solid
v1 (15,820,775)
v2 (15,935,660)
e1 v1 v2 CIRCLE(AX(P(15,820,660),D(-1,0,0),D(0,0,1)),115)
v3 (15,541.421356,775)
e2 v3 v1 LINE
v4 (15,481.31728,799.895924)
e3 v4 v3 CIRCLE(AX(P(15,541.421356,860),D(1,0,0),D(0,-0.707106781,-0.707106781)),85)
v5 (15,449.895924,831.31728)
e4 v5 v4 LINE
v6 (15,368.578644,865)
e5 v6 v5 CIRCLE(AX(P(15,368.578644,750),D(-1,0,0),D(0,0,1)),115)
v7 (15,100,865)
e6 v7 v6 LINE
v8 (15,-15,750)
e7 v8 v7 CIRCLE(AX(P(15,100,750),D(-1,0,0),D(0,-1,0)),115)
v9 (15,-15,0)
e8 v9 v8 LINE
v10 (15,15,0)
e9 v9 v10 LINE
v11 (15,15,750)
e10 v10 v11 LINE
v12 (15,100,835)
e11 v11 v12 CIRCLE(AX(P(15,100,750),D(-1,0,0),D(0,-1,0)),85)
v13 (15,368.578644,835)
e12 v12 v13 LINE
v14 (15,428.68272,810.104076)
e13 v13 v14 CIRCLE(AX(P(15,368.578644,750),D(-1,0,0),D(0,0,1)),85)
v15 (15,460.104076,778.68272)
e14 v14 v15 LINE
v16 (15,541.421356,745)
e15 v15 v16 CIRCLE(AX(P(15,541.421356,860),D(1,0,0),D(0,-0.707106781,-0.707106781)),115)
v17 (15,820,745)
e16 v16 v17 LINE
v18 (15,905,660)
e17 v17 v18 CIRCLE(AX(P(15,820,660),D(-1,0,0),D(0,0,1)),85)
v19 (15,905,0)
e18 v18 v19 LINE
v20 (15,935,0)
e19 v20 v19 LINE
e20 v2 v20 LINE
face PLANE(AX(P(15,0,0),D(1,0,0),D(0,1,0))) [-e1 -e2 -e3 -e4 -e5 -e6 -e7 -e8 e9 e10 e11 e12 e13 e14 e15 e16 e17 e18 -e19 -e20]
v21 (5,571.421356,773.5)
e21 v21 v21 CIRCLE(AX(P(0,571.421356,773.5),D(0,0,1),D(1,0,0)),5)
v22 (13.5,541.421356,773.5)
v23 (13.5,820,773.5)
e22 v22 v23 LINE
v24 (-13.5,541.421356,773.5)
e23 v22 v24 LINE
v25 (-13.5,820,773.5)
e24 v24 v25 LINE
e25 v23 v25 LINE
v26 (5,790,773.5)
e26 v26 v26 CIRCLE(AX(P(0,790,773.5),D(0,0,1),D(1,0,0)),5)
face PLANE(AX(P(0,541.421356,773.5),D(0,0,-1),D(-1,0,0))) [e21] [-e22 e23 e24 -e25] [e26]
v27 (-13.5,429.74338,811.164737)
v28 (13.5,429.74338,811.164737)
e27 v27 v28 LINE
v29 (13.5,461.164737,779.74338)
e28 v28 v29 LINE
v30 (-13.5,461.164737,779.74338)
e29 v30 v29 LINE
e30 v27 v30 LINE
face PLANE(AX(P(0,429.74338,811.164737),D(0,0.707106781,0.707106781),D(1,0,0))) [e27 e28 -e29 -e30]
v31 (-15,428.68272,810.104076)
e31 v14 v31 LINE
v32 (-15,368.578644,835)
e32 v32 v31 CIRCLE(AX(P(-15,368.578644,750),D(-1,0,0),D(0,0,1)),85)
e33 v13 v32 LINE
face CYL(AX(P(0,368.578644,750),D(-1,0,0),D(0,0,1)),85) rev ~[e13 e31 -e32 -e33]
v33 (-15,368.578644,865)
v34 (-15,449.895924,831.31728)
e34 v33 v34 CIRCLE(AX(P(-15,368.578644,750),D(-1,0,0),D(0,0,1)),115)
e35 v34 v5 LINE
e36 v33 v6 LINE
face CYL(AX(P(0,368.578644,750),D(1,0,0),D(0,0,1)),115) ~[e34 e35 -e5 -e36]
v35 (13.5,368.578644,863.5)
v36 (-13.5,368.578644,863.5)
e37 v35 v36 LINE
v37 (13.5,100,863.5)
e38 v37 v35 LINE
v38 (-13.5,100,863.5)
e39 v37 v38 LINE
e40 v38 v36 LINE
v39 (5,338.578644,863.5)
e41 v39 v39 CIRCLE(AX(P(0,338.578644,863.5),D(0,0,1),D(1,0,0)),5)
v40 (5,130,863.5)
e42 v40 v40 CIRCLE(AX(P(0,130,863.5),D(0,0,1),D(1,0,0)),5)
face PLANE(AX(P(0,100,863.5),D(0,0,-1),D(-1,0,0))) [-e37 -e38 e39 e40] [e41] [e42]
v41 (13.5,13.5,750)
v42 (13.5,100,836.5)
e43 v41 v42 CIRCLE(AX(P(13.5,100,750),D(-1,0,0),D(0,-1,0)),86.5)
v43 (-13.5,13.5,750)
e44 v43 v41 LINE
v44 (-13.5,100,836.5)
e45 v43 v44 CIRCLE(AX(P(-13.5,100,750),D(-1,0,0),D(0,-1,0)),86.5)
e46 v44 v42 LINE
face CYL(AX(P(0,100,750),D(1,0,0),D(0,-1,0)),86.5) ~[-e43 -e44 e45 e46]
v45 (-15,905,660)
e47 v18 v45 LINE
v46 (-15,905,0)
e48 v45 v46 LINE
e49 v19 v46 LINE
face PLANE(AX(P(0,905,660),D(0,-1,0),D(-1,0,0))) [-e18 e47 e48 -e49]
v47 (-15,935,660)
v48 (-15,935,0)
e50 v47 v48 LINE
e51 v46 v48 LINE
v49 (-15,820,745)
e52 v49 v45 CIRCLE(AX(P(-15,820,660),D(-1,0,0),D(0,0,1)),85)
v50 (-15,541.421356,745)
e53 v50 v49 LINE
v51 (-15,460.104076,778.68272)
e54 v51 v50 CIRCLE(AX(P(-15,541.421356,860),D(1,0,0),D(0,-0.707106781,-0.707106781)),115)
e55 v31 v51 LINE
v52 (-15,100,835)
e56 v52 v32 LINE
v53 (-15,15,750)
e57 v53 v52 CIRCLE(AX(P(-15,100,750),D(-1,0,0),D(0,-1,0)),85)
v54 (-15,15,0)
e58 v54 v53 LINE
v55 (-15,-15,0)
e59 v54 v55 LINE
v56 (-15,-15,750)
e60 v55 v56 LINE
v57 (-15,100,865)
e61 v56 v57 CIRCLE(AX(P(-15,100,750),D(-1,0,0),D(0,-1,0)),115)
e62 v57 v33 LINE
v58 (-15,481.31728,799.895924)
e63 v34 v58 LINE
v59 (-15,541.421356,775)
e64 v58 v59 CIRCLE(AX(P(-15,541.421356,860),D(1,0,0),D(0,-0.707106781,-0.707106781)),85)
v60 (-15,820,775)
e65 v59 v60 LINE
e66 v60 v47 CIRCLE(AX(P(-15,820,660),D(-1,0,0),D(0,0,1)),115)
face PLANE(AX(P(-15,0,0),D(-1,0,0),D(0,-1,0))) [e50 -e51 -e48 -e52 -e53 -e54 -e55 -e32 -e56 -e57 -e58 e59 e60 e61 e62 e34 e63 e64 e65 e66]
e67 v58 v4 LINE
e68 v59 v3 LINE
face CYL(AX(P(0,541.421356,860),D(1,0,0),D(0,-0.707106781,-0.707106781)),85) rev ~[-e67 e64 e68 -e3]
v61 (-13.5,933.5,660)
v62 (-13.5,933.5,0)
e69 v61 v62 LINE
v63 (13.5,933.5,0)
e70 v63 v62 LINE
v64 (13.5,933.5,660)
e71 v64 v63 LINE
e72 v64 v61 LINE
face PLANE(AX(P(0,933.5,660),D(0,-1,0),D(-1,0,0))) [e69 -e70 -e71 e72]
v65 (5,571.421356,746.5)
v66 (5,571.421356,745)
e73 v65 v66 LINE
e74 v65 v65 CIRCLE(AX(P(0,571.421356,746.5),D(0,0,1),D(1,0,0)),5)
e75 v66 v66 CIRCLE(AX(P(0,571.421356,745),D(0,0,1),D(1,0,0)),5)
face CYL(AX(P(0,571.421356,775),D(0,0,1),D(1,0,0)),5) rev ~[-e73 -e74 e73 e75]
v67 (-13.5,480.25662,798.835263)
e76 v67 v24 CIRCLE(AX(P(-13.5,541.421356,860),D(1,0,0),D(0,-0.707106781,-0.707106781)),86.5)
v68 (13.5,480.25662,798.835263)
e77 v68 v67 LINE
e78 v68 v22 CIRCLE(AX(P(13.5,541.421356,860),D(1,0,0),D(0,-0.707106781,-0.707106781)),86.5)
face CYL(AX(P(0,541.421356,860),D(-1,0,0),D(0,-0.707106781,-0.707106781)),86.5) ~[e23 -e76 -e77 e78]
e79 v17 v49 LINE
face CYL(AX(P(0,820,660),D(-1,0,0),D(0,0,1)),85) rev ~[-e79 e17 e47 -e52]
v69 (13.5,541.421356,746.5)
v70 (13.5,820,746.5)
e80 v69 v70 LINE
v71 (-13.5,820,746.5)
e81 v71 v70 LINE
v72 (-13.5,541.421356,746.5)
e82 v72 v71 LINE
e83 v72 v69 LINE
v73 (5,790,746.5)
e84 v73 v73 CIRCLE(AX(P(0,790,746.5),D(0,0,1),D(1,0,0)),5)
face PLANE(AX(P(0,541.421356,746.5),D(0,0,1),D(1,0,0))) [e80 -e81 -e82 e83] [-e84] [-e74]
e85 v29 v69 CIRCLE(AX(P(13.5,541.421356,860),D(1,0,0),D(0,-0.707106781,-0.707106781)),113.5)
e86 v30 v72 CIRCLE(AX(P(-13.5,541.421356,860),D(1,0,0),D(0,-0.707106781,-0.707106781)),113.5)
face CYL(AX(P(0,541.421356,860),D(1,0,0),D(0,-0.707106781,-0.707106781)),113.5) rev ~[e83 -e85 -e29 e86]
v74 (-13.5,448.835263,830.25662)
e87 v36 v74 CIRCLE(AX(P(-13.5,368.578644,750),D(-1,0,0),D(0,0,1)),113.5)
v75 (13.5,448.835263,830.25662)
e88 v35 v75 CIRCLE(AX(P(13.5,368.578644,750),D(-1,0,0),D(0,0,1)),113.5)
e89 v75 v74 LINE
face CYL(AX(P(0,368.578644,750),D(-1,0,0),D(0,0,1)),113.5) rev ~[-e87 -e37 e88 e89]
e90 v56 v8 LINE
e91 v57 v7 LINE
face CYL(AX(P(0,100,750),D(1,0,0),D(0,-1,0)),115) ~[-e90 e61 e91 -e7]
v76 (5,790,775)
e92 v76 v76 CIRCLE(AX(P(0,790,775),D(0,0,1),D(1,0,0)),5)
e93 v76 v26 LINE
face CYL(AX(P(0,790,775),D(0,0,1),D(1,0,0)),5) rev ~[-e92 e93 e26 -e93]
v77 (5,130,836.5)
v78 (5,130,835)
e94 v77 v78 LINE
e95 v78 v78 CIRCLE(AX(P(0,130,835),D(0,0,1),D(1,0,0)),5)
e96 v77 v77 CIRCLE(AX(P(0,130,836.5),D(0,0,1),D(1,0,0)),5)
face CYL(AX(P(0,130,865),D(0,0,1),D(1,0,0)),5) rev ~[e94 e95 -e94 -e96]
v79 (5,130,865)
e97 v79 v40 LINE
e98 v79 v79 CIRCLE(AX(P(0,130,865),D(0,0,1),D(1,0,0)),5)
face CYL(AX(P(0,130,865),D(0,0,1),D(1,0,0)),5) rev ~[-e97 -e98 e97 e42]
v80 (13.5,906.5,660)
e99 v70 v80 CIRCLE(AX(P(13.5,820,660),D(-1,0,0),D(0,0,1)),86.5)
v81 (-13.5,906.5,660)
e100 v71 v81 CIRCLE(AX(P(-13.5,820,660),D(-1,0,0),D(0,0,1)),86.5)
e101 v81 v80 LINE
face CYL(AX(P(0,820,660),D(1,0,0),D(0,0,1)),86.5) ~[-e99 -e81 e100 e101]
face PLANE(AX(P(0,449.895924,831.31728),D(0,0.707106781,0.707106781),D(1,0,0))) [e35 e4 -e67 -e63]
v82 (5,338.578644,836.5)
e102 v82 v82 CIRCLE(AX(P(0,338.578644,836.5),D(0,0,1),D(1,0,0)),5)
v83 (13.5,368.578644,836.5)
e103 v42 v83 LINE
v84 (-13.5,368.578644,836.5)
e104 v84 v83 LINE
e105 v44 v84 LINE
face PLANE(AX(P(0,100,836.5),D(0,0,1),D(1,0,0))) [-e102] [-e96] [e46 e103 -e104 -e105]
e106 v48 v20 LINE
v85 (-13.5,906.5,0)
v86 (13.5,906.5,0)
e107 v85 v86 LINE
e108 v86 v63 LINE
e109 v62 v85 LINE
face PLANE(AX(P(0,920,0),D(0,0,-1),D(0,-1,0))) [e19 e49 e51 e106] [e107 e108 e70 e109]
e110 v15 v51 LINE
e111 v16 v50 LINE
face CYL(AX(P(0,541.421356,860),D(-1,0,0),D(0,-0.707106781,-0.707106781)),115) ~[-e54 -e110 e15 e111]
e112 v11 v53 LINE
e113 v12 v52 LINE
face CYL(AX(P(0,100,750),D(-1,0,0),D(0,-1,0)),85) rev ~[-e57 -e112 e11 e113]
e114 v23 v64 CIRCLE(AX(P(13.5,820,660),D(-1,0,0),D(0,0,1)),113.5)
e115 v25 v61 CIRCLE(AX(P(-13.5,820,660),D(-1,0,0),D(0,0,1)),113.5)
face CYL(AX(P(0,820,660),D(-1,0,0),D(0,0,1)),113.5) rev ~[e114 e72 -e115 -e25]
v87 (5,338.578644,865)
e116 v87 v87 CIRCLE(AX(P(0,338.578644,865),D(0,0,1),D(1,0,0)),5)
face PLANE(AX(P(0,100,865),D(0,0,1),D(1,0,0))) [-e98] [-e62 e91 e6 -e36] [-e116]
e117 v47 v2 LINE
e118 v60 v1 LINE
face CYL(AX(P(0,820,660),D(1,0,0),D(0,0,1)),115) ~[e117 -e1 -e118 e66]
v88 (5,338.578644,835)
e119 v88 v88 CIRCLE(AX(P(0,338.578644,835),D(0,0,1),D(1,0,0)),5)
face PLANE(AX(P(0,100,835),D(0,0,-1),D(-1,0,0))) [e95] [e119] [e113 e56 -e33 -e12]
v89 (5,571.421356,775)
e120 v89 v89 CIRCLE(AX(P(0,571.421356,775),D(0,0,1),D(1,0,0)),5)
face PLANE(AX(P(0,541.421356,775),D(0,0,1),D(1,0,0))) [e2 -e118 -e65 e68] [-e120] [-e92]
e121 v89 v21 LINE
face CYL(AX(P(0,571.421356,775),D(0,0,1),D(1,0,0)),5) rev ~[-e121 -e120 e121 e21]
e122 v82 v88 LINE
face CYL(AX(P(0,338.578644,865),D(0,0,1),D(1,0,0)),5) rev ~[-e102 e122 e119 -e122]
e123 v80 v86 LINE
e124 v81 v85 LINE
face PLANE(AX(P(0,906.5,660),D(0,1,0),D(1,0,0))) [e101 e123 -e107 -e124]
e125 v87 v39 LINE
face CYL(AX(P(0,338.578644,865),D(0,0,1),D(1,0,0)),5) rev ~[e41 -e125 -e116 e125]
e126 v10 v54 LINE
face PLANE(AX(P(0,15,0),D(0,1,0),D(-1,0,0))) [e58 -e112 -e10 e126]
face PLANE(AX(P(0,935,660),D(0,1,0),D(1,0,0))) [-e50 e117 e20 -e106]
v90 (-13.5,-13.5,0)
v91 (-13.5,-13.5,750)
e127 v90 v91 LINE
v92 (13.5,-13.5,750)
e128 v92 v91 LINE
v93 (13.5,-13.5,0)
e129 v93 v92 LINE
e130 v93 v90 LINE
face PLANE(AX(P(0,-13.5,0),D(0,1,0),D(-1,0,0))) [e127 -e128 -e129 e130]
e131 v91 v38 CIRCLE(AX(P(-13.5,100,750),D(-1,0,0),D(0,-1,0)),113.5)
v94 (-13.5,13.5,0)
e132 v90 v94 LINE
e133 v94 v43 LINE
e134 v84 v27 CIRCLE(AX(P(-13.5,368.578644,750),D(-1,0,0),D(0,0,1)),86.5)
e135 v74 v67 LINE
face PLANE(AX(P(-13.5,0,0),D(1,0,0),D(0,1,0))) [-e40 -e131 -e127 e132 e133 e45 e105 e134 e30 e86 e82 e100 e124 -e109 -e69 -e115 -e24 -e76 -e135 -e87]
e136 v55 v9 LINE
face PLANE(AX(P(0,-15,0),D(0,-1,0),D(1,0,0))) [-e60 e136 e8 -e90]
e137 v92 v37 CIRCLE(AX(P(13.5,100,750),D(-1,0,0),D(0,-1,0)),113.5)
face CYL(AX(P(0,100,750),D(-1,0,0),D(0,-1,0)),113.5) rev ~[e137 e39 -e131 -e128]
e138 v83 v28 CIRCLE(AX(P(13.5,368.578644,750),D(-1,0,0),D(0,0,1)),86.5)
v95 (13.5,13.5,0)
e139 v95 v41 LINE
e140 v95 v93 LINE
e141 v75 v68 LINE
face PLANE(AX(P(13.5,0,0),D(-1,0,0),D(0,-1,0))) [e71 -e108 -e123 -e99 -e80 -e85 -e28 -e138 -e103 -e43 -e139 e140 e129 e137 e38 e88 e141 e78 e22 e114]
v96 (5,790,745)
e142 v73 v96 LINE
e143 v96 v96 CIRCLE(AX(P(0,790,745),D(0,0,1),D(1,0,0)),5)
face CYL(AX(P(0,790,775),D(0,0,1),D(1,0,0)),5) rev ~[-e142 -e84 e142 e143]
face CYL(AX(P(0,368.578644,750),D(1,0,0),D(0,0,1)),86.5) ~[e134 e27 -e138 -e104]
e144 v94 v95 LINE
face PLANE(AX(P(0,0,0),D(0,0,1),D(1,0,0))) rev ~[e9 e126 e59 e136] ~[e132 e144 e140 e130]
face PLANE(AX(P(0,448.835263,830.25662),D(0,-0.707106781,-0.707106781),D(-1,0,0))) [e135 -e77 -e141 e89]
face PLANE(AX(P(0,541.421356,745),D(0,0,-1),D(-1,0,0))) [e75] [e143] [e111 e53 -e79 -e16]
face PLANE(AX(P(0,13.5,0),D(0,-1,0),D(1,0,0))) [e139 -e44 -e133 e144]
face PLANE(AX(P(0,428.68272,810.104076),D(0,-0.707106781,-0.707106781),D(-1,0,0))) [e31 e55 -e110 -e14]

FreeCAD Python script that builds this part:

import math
import FreeCAD as App
import Part
import Sketcher

V = App.Vector
Q = App.Units.Quantity

doc = App.newDocument("Part")
body = doc.addObject("PartDesign::Body", "Body")

# Sketch on XY plane
sketch1 = body.newObject("Sketcher::SketchObject", "Sketch")
sketch1.AttachmentSupport = (doc.getObject("XY_Plane"), [""])
sketch1.MapMode = "FlatFace"
sketch1.addGeometry([
    Part.LineSegment(V(-15, 15, 0), V(-15, -15, 0)),  # 0
    Part.LineSegment(V(-15, -15, 0), V(15, -15, 0)),  # 1
    Part.LineSegment(V(15, -15, 0), V(15, 15, 0)),  # 2
    Part.LineSegment(V(15, 15, 0), V(-15, 15, 0)),  # 3
    Part.LineSegment(V(14, -14, 0), V(-14, -14, 0)),  # 4
    Part.LineSegment(V(-14, -14, 0), V(-14, 14, 0)),  # 5
    Part.LineSegment(V(-14, 14, 0), V(14, 14, 0)),  # 6
    Part.LineSegment(V(14, 14, 0), V(14, -14, 0)),  # 7
], False)
sketch1.addConstraint([
    Sketcher.Constraint("Coincident", 0, 2, 1, 1),
    Sketcher.Constraint("Coincident", 1, 2, 2, 1),
    Sketcher.Constraint("Coincident", 2, 2, 3, 1),
    Sketcher.Constraint("Coincident", 3, 2, 0, 1),
    Sketcher.Constraint("Coincident", 4, 2, 5, 1),
    Sketcher.Constraint("Coincident", 5, 2, 6, 1),
    Sketcher.Constraint("Coincident", 6, 2, 7, 1),
    Sketcher.Constraint("Coincident", 7, 2, 4, 1),
    Sketcher.Constraint("Vertical", 0),
    Sketcher.Constraint("Horizontal", 1),
    Sketcher.Constraint("Vertical", 2),
    Sketcher.Constraint("Horizontal", 3),
    Sketcher.Constraint("Horizontal", 4),
    Sketcher.Constraint("Vertical", 5),
    Sketcher.Constraint("Horizontal", 6),
    Sketcher.Constraint("Vertical", 7),
    Sketcher.Constraint("Symmetric", 0, 2, 2, 2, -1, 1),
    Sketcher.Constraint("Symmetric", 4, 2, 6, 2, -1, 1),
    Sketcher.Constraint("Equal", 3, 0),
    Sketcher.Constraint("Equal", 6, 5),
    Sketcher.Constraint("DistanceX", 1, 1, 1, 2, Q("30 mm")),
    Sketcher.Constraint("DistanceX", 4, 2, 4, 1, Q("27 mm")),
])

# Sketch on YZ plane
sketch2 = body.newObject("Sketcher::SketchObject", "Sketch001")
sketch2.AttachmentSupport = (doc.getObject("YZ_Plane"), [""])
sketch2.MapMode = "FlatFace"
sketch2.addGeometry([
    Part.LineSegment(V(0, 0, 0), V(0, 750, 0)),  # 0
    Part.ArcOfCircle(Part.Circle(V(100, 750, 0), V(0, 0, 1), 100), math.radians(90), math.radians(180)),  # 1
    Part.LineSegment(V(100, 850, 0), V(369, 850, 0)),  # 2
    Part.ArcOfCircle(Part.Circle(V(369, 750, 0), V(0, 0, 1), 100), math.radians(45), math.radians(90)),  # 3
    Part.LineSegment(V(439, 821, 0), V(471, 789, 0)),  # 4
    Part.ArcOfCircle(Part.Circle(V(541, 860, 0), V(0, 0, 1), 100), math.radians(-135), math.radians(-90)),  # 5
    Part.LineSegment(V(541, 760, 0), V(820, 760, 0)),  # 6
    Part.ArcOfCircle(Part.Circle(V(820, 660, 0), V(0, 0, 1), 100), math.radians(0), math.radians(90)),  # 7
    Part.LineSegment(V(920, 660, 0), V(920, 0, 0)),  # 8
], False)
sketch2.addConstraint([
    Sketcher.Constraint("Tangent", 0, 2, 1, 2),
    Sketcher.Constraint("Tangent", 1, 1, 2, 1),
    Sketcher.Constraint("Tangent", 2, 2, 3, 2),
    Sketcher.Constraint("Tangent", 3, 1, 4, 1),
    Sketcher.Constraint("Tangent", 4, 2, 5, 1),
    Sketcher.Constraint("Tangent", 5, 2, 6, 1),
    Sketcher.Constraint("Tangent", 6, 2, 7, 2),
    Sketcher.Constraint("Tangent", 7, 1, 8, 1),
    Sketcher.Constraint("Vertical", 0),
    Sketcher.Constraint("Horizontal", 2),
    Sketcher.Constraint("Horizontal", 6),
    Sketcher.Constraint("Vertical", 8),
    Sketcher.Constraint("Coincident", 0, 1, -1, 1),
    Sketcher.Constraint("Equal", 1, 3),
    Sketcher.Constraint("Equal", 3, 5),
    Sketcher.Constraint("Equal", 5, 7),
    Sketcher.Constraint("PointOnObject", 8, 2, -1),
    Sketcher.Constraint("Radius", 1, Q("100 mm")),
    Sketcher.Constraint("DistanceY", 0, 1, 0, 2, Q("750 mm")),
    Sketcher.Constraint("DistanceY", 8, 2, 8, 1, Q("660 mm")),
    Sketcher.Constraint("Angle", 4, Q("-45 deg")),
    Sketcher.Constraint("DistanceX", -1, 1, 7, 3, Q("820 mm")),
    Sketcher.Constraint("DistanceX", 2, 1, 2, 2, Q("268.578644 mm")),
])
doc.recompute()

additivepipe = body.newObject("PartDesign::AdditivePipe", "AdditivePipe")
additivepipe.Profile = sketch1
additivepipe.Spine = (sketch2, ["Edge1", "Edge2", "Edge3", "Edge4", "Edge5", "Edge6", "Edge7", "Edge8", "Edge9"])

# Sketch on XY plane
sketch3 = body.newObject("Sketcher::SketchObject", "Sketch002")
sketch3.AttachmentSupport = (doc.getObject("XY_Plane"), [""])
sketch3.MapMode = "FlatFace"
sketch3.AttachmentOffset = App.Placement(V(0, 0, 865), App.Rotation())
sketch3.addGeometry([
    Part.Circle(V(0, 130, 0), V(0, 0, 1), 5),
    Part.Circle(V(0, 339, 0), V(0, 0, 1), 5),
], False)
sketch3.addConstraint([
    Sketcher.Constraint("Equal", 0, 1),
    Sketcher.Constraint("PointOnObject", 0, 3, -2),
    Sketcher.Constraint("PointOnObject", 1, 3, -2),
    Sketcher.Constraint("Diameter", 0, Q("10 mm")),
    Sketcher.Constraint("DistanceY", -1, 1, 0, 3, Q("130 mm")),
    Sketcher.Constraint("DistanceY", -1, 1, 1, 3, Q("338.578644 mm")),
])
pocket1 = body.newObject("PartDesign::Pocket", "Pocket")
pocket1.Profile = sketch3
pocket1.Length = 40

# Sketch on XY plane
sketch4 = body.newObject("Sketcher::SketchObject", "Sketch003")
sketch4.AttachmentSupport = (doc.getObject("XY_Plane"), [""])
sketch4.MapMode = "FlatFace"
sketch4.AttachmentOffset = App.Placement(V(0, 0, 775), App.Rotation())
sketch4.addGeometry([
    Part.Circle(V(0, 571, 0), V(0, 0, 1), 5),
    Part.Circle(V(0, 790, 0), V(0, 0, 1), 5),
], False)
sketch4.addConstraint([
    Sketcher.Constraint("Equal", 0, 1),
    Sketcher.Constraint("PointOnObject", 0, 3, -2),
    Sketcher.Constraint("PointOnObject", 1, 3, -2),
    Sketcher.Constraint("Diameter", 0, Q("10 mm")),
    Sketcher.Constraint("DistanceY", -1, 1, 1, 3, Q("790 mm")),
    Sketcher.Constraint("DistanceY", -1, 1, 0, 3, Q("571.421356 mm")),
])
pocket2 = body.newObject("PartDesign::Pocket", "Pocket001")
pocket2.Profile = sketch4
pocket2.Length = 40

doc.recompute()
